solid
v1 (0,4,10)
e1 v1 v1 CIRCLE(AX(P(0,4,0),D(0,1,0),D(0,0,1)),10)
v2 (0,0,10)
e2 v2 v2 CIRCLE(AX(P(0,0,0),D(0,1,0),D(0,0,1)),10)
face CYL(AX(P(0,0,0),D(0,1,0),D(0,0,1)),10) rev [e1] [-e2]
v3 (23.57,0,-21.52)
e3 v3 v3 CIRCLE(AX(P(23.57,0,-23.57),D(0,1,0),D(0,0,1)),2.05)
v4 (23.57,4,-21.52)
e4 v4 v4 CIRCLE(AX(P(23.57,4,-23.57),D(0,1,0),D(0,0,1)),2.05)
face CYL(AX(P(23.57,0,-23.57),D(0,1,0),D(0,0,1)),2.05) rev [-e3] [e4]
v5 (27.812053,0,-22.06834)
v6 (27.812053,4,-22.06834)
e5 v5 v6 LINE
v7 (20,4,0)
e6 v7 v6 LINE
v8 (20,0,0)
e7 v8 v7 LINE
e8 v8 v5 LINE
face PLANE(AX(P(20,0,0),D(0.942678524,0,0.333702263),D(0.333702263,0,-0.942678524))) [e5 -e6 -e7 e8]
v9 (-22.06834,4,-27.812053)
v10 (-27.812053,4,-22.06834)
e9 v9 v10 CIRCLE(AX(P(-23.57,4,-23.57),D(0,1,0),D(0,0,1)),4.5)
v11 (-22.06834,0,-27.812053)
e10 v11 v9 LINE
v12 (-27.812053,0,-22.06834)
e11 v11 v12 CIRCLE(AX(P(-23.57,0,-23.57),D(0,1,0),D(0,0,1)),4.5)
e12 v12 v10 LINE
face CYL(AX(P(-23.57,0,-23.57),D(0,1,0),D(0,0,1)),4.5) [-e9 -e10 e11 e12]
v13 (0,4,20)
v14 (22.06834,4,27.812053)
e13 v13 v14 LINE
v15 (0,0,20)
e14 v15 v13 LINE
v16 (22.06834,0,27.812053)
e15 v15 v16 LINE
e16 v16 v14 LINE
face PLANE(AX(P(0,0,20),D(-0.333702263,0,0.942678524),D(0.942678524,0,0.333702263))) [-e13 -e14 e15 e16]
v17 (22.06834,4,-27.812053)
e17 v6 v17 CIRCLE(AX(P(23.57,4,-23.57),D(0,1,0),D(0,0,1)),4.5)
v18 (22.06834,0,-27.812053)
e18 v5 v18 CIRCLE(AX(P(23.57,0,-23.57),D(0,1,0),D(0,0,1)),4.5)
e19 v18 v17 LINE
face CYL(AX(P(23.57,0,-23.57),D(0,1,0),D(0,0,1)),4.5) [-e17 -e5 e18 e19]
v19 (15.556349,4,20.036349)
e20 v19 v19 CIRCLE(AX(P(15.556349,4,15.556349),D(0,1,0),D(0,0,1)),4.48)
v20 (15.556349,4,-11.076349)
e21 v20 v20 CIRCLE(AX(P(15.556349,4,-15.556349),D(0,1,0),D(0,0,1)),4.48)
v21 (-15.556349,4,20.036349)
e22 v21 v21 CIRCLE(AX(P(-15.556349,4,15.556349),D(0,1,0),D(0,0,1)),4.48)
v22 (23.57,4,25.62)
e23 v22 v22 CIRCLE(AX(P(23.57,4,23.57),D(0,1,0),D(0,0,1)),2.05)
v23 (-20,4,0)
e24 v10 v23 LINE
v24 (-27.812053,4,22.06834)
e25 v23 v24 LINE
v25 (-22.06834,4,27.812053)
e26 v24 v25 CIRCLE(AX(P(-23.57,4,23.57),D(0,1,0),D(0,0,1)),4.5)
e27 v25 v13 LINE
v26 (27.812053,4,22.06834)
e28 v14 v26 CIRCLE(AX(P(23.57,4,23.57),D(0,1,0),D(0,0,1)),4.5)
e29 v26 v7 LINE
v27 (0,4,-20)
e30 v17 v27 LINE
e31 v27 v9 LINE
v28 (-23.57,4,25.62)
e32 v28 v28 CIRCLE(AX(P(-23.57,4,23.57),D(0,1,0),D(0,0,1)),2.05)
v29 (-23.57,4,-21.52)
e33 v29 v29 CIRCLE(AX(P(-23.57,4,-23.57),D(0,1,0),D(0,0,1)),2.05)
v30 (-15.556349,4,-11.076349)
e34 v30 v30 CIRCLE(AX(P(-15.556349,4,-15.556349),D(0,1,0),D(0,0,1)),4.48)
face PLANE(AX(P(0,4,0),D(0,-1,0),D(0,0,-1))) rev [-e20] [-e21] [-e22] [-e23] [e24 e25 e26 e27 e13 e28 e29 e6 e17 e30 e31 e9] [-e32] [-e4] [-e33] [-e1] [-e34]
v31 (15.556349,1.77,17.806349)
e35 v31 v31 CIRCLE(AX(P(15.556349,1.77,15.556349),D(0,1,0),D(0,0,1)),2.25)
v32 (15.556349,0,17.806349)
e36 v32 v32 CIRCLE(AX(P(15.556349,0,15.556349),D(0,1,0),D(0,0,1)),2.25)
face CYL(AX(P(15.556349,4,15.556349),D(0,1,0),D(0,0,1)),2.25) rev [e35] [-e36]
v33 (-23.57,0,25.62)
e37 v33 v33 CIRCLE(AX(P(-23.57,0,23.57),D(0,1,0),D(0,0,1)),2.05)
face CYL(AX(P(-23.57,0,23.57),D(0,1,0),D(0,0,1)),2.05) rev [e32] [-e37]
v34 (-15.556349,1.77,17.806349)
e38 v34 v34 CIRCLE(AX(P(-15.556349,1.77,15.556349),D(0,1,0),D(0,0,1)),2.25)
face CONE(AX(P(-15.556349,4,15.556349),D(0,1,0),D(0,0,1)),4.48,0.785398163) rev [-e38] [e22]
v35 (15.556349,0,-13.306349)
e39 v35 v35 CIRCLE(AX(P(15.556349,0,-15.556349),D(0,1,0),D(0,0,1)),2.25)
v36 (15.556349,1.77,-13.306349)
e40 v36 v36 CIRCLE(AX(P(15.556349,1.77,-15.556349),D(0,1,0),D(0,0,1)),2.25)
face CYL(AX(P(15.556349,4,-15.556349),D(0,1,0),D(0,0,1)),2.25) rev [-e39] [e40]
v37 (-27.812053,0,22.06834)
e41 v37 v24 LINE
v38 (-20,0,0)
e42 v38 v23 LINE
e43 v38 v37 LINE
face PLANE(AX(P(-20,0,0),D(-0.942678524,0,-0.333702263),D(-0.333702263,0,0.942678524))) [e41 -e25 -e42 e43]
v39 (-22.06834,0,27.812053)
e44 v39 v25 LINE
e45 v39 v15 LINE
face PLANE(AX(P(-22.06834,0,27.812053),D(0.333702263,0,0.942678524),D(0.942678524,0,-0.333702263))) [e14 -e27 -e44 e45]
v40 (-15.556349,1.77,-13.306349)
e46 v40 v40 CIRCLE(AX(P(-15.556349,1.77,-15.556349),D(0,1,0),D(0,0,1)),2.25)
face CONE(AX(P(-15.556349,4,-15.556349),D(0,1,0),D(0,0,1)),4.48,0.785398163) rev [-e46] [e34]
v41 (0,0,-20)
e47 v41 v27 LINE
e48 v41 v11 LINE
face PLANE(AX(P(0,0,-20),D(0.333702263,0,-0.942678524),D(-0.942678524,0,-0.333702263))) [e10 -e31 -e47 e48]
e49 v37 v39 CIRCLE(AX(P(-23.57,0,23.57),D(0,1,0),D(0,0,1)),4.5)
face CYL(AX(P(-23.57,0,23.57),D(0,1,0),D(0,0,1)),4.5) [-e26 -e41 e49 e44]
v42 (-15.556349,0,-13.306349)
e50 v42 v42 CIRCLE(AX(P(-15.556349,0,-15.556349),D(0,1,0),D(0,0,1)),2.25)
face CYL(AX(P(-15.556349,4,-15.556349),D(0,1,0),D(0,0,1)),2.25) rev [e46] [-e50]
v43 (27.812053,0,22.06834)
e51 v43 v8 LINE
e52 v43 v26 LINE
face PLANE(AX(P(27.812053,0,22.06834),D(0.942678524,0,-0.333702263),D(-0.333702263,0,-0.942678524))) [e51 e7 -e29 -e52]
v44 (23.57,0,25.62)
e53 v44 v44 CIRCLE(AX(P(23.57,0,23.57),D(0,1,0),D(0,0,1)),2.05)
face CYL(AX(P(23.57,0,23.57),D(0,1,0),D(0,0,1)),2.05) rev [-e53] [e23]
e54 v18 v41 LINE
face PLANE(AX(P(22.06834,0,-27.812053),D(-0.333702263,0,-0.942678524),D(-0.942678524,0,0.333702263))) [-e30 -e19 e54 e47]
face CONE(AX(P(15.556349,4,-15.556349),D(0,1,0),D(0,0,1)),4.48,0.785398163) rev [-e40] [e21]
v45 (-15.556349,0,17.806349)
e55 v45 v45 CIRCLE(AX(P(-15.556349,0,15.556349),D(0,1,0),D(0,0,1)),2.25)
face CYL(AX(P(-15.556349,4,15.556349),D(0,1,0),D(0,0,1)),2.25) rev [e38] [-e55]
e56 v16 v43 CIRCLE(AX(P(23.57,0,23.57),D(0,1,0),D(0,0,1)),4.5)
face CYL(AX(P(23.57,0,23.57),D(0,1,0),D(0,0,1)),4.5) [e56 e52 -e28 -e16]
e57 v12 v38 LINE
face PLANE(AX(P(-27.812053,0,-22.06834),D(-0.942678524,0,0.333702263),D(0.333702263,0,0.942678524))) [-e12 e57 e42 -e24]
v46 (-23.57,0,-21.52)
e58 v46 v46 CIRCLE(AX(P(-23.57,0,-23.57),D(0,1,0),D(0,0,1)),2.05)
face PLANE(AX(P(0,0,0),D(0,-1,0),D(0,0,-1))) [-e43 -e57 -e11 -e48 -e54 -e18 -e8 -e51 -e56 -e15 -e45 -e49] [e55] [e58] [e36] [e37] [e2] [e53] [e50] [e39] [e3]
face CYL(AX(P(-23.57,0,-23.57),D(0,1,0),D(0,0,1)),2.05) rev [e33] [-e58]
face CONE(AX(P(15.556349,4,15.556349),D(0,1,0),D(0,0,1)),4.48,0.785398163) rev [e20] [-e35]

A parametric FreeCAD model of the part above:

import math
import FreeCAD as App
import Part
import Sketcher
from FreeCAD import Vector
Q = App.Units.Quantity

doc = App.newDocument("Part")
body = doc.addObject("PartDesign::Body", "Body")

# Sketch on XZ plane
sketch1 = doc.addObject("Sketcher::SketchObject", "Sketch")
body.addObject(sketch1)
sketch1.AttachmentSupport = (doc.XZ_Plane, [""])
sketch1.MapMode = "FlatFace"
sketch1.addGeometry([
    Part.LineSegment(Vector(-36, -30, 0), Vector(-36, 30, 0)),
    Part.LineSegment(Vector(-36, 30, 0), Vector(36, 30, 0)),
    Part.LineSegment(Vector(36, 30, 0), Vector(36, -30, 0)),
    Part.LineSegment(Vector(36, -30, 0), Vector(-36, -30, 0)),
], False)
sketch1.addConstraint([
    Sketcher.Constraint("Coincident", 0, 2, 1, 1),
    Sketcher.Constraint("Coincident", 1, 2, 2, 1),
    Sketcher.Constraint("Coincident", 2, 2, 3, 1),
    Sketcher.Constraint("Coincident", 3, 2, 0, 1),
    Sketcher.Constraint("Vertical", 0),
    Sketcher.Constraint("Horizontal", 1),
    Sketcher.Constraint("Vertical", 2),
    Sketcher.Constraint("Horizontal", 3),
    Sketcher.Constraint("Symmetric", 0, 2, 2, 2, -1, 1),
    Sketcher.Constraint("DistanceY", 0, 1, 0, 2, 60.0),
    Sketcher.Constraint("DistanceX", 1, 1, 1, 2, 71.3),
])
pad1 = doc.addObject("PartDesign::Pad", "Pad")
body.addObject(pad1)
pad1.Profile = sketch1
pad1.Length = 4
pad1.Reversed = True

# Sketch on XZ plane
sketch2 = doc.addObject("Sketcher::SketchObject", "Sketch001")
body.addObject(sketch2)
sketch2.AttachmentSupport = (doc.XZ_Plane, [""])
sketch2.MapMode = "FlatFace"
sketch2.AttachmentOffset = App.Placement(Vector(0, 0, -4), App.Rotation())
sketch2.addGeometry([
    Part.Circle(Vector(-15.6, -15.6, 0), Vector(0, 0, 1), 2),  # 0
    Part.Circle(Vector(-23.6, -23.6, 0), Vector(0, 0, 1), 2),  # 1
    Part.Circle(Vector(15.6, -15.6, 0), Vector(0, 0, 1), 2),  # 2
    Part.Circle(Vector(23.6, -23.6, 0), Vector(0, 0, 1), 2),  # 3
    Part.Circle(Vector(15.6, 15.6, 0), Vector(0, 0, 1), 2),  # 4
    Part.Circle(Vector(23.6, 23.6, 0), Vector(0, 0, 1), 2),  # 5
    Part.Circle(Vector(-15.6, 15.6, 0), Vector(0, 0, 1), 2),  # 6
    Part.Circle(Vector(-23.6, 23.6, 0), Vector(0, 0, 1), 2),  # 7
], False)
sketch2.addConstraint([
    Sketcher.Constraint("Equal", 0, 1),
    Sketcher.Constraint("Equal", 1, 2),
    Sketcher.Constraint("Equal", 2, 3),
    Sketcher.Constraint("Equal", 3, 4),
    Sketcher.Constraint("Equal", 4, 5),
    Sketcher.Constraint("Equal", 5, 6),
    Sketcher.Constraint("Equal", 6, 7),
    Sketcher.Constraint("Symmetric", 0, 3, 4, 3, -1, 1),
    Sketcher.Constraint("Symmetric", 1, 3, 5, 3, -1, 1),
    Sketcher.Constraint("Symmetric", 2, 3, 6, 3, -1, 1),
    Sketcher.Constraint("Symmetric", 3, 3, 7, 3, -1, 1),
    Sketcher.Constraint("Symmetric", 0, 3, 2, 3, -2),
    Sketcher.Constraint("Symmetric", 1, 3, 3, 3, -2),
    Sketcher.Constraint("Diameter", 0, 4.1),
    Sketcher.Constraint("DistanceX", 1, 3, -1, 1, 23.57),
    Sketcher.Constraint("DistanceY", 1, 3, -1, 1, 23.57),
    Sketcher.Constraint("DistanceX", 0, 3, 2, 3, 31.112698),
    Sketcher.Constraint("DistanceY", 2, 3, 4, 3, 31.112698),
])
pocket1 = doc.addObject("PartDesign::Pocket", "Pocket")
body.addObject(pocket1)
pocket1.Profile = sketch2
pocket1.Type = "ThroughAll"
pocket1.Reversed = True

# Sketch on XZ plane
sketch3 = doc.addObject("Sketcher::SketchObject", "Sketch002")
body.addObject(sketch3)
sketch3.AttachmentSupport = (doc.XZ_Plane, [""])
sketch3.MapMode = "FlatFace"
sketch3.AttachmentOffset = App.Placement(Vector(0, 0, -4), App.Rotation())
sketch3.addGeometry(Part.Circle(Vector(0, 0, 0), Vector(0, 0, 1), 10), False)
sketch3.addConstraint([
    Sketcher.Constraint("Coincident", 0, 3, -1, 1),
    Sketcher.Constraint("Diameter", 0, 20.0),
])
pocket2 = doc.addObject("PartDesign::Pocket", "Pocket001")
body.addObject(pocket2)
pocket2.Profile = sketch3
pocket2.Type = "ThroughAll"
pocket2.Reversed = True

# Sketch on XZ plane
sketch4 = doc.addObject("Sketcher::SketchObject", "Sketch003")
body.addObject(sketch4)
sketch4.AttachmentSupport = (doc.XZ_Plane, [""])
sketch4.MapMode = "FlatFace"
sketch4.AttachmentOffset = App.Placement(Vector(0, 0, -4), App.Rotation())
sketch4.addGeometry([
    Part.LineSegment(Vector(-46, -40.3, 0), Vector(-46, 40.3, 0)),  # 0
    Part.LineSegment(Vector(-46, 40.3, 0), Vector(46, 40.3, 0)),  # 1
    Part.LineSegment(Vector(46, 40.3, 0), Vector(46, -40.3, 0)),  # 2
    Part.LineSegment(Vector(46, -40.3, 0), Vector(-46, -40.3, 0)),  # 3
    Part.LineSegment(Vector(27.8, -22.1, 0), Vector(20, 0, 0)),  # 4
    Part.LineSegment(Vector(20, 0, 0), Vector(27.8, 22.1, 0)),  # 5
    Part.ArcOfCircle(Part.Circle(Vector(23.6, 23.6, 0), Vector(0, 0, 1), 4.5), math.radians(-19), math.radians(109)),  # 6
    Part.LineSegment(Vector(22.1, 27.8, 0), Vector(0, 20, 0)),  # 7
    Part.LineSegment(Vector(0, 20, 0), Vector(-22.1, 27.8, 0)),  # 8
    Part.ArcOfCircle(Part.Circle(Vector(-23.6, 23.6, 0), Vector(0, 0, 1), 4.5), math.radians(71), math.radians(199)),  # 9
    Part.LineSegment(Vector(-27.8, 22.1, 0), Vector(-20, 0, 0)),  # 10
    Part.LineSegment(Vector(-20, 0, 0), Vector(-27.8, -22.1, 0)),  # 11
    Part.ArcOfCircle(Part.Circle(Vector(-23.6, -23.6, 0), Vector(0, 0, 1), 4.5), math.radians(161), math.radians(289)),  # 12
    Part.LineSegment(Vector(-22.1, -27.8, 0), Vector(0, -20, 0)),  # 13
    Part.LineSegment(Vector(0, -20, 0), Vector(22.1, -27.8, 0)),  # 14
    Part.ArcOfCircle(Part.Circle(Vector(23.6, -23.6, 0), Vector(0, 0, 1), 4.5), math.radians(-109), math.radians(19)),  # 15
], False)
sketch4.addConstraint([
    Sketcher.Constraint("Coincident", 0, 2, 1, 1),
    Sketcher.Constraint("Coincident", 1, 2, 2, 1),
    Sketcher.Constraint("Coincident", 2, 2, 3, 1),
    Sketcher.Constraint("Coincident", 3, 2, 0, 1),
    Sketcher.Constraint("Coincident", 4, 2, 5, 1),
    Sketcher.Constraint("Tangent", 5, 2, 6, 1),
    Sketcher.Constraint("Tangent", 6, 2, 7, 1),
    Sketcher.Constraint("Coincident", 7, 2, 8, 1),
    Sketcher.Constraint("Tangent", 8, 2, 9, 1),
    Sketcher.Constraint("Tangent", 9, 2, 10, 1),
    Sketcher.Constraint("Coincident", 10, 2, 11, 1),
    Sketcher.Constraint("Tangent", 11, 2, 12, 1),
    Sketcher.Constraint("Tangent", 12, 2, 13, 1),
    Sketcher.Constraint("Coincident", 13, 2, 14, 1),
    Sketcher.Constraint("Tangent", 14, 2, 15, 1),
    Sketcher.Constraint("Tangent", 15, 2, 4, 1),
    Sketcher.Constraint("Vertical", 0),
    Sketcher.Constraint("Horizontal", 1),
    Sketcher.Constraint("Vertical", 2),
    Sketcher.Constraint("Horizontal", 3),
    Sketcher.Constraint("Equal", 6, 9),
    Sketcher.Constraint("Equal", 9, 12),
    Sketcher.Constraint("Equal", 12, 15),
    Sketcher.Constraint("Symmetric", 6, 3, 12, 3, -1, 1),
    Sketcher.Constraint("Symmetric", 9, 3, 15, 3, -1, 1),
    Sketcher.Constraint("Symmetric", 0, 2, 2, 2, -1, 1),
    Sketcher.Constraint("Symmetric", 4, 2, 10, 2, -1, 1),
    Sketcher.Constraint("Symmetric", 7, 2, 13, 2, -1, 1),
    Sketcher.Constraint("Symmetric", 6, 3, 9, 3, -2),
    Sketcher.Constraint("PointOnObject", 4, 2, -1),
    Sketcher.Constraint("PointOnObject", 7, 2, -2),
    Sketcher.Constraint("Perpendicular", 4, 7),
    Sketcher.Constraint("Equal", 5, 7),
    Sketcher.Constraint("Radius", 6, 4.5),
    Sketcher.Constraint("DistanceX", -1, 1, 4, 2, 20.0),
    Sketcher.Constraint("DistanceX", 1, 1, 1, 2, 91.954),
    Sketcher.Constraint("DistanceY", 0, 1, 0, 2, 80.654),
    Sketcher.Constraint("DistanceX", -1, 1, 6, 3, 23.57),
])
pocket3 = doc.addObject("PartDesign::Pocket", "Pocket002")
body.addObject(pocket3)
pocket3.Profile = sketch4
pocket3.Type = "ThroughAll"
pocket3.Reversed = True

# Sketch on YZ plane
sketch5 = doc.addObject("Sketcher::SketchObject", "Sketch004")
body.addObject(sketch5)
sketch5.AttachmentSupport = (doc.YZ_Plane, [""])
sketch5.MapMode = "FlatFace"
sketch5.AttachmentOffset = App.Placement(Vector(0, 0, -15.556349), App.Rotation())
sketch5.addGeometry([
    Part.LineSegment(Vector(0, -15.6, 0), Vector(4, -15.6, 0)),  # 0
    Part.LineSegment(Vector(4, -15.6, 0), Vector(4, -11.1, 0)),  # 1
    Part.LineSegment(Vector(4, -11.1, 0), Vector(1.8, -13.3, 0)),  # 2
    Part.LineSegment(Vector(1.8, -13.3, 0), Vector(0, -13.3, 0)),  # 3
    Part.LineSegment(Vector(0, -13.3, 0), Vector(0, -15.6, 0)),  # 4
], False)
sketch5.addGeometry(Part.LineSegment(Vector(4, -15.6, 0), Vector(0, -15.6, 0)), True)  # axis
sketch5.addConstraint([
    Sketcher.Constraint("Coincident", 0, 2, 1, 1),
    Sketcher.Constraint("Coincident", 1, 2, 2, 1),
    Sketcher.Constraint("Coincident", 2, 2, 3, 1),
    Sketcher.Constraint("Coincident", 3, 2, 4, 1),
    Sketcher.Constraint("Coincident", 4, 2, 0, 1),
    Sketcher.Constraint("Horizontal", 0),
    Sketcher.Constraint("Vertical", 1),
    Sketcher.Constraint("Horizontal", 3),
    Sketcher.Constraint("Vertical", 4),
    Sketcher.Constraint("Horizontal", 5),
    Sketcher.Constraint("Coincident", 5, 1, 0, 2),
    Sketcher.Constraint("PointOnObject", 3, 2, -2),
    Sketcher.Constraint("PointOnObject", 5, 2, -2),
    Sketcher.Constraint("DistanceX", 0, 1, 0, 2, 4.0),
    Sketcher.Constraint("Angle", 2, Q("-135 deg")),
    Sketcher.Constraint("DistanceX", 3, 2, 3, 1, 1.77),
    Sketcher.Constraint("DistanceY", 1, 1, 1, 2, 4.48),
    Sketcher.Constraint("DistanceY", 0, 2, -1, 1, 15.556349),
])
groove = doc.addObject("PartDesign::Groove", "Groove")
body.addObject(groove)
groove.Profile = sketch5
groove.ReferenceAxis = (sketch5, ["Axis0"])
groove.Angle = 360
doc.recompute()

linearpattern = doc.addObject("PartDesign::LinearPattern", "LinearPattern")
body.addObject(linearpattern)
linearpattern.Originals = [groove]
linearpattern.Direction = (doc.X_Axis, [""])
linearpattern.Mode = "offset"
linearpattern.Offset = 31.112698
linearpattern.Occurrences = 2
body.Tip = linearpattern
doc.recompute()

datumline = doc.addObject("PartDesign::Line", "DatumLine")
body.addObject(datumline)
datumline.Placement = App.Placement(Vector(0, 0, 0), App.Rotation(Vector(0, 0, 1), Vector(0.707106781, 0, 0.707106781)))
linearpattern2 = doc.addObject("PartDesign::LinearPattern", "LinearPattern001")
body.addObject(linearpattern2)
linearpattern2.Originals = [groove]
linearpattern2.Direction = (datumline, [""])
linearpattern2.Mode = "offset"
linearpattern2.Offset = 44
linearpattern2.Occurrences = 2
body.Tip = linearpattern2
doc.recompute()

linearpattern3 = doc.addObject("PartDesign::LinearPattern", "LinearPattern002")
body.addObject(linearpattern3)
linearpattern3.Originals = [groove]
linearpattern3.Direction = (doc.Z_Axis, [""])
linearpattern3.Mode = "offset"
linearpattern3.Offset = 31.112698
linearpattern3.Occurrences = 2
body.Tip = linearpattern3

doc.recompute()
